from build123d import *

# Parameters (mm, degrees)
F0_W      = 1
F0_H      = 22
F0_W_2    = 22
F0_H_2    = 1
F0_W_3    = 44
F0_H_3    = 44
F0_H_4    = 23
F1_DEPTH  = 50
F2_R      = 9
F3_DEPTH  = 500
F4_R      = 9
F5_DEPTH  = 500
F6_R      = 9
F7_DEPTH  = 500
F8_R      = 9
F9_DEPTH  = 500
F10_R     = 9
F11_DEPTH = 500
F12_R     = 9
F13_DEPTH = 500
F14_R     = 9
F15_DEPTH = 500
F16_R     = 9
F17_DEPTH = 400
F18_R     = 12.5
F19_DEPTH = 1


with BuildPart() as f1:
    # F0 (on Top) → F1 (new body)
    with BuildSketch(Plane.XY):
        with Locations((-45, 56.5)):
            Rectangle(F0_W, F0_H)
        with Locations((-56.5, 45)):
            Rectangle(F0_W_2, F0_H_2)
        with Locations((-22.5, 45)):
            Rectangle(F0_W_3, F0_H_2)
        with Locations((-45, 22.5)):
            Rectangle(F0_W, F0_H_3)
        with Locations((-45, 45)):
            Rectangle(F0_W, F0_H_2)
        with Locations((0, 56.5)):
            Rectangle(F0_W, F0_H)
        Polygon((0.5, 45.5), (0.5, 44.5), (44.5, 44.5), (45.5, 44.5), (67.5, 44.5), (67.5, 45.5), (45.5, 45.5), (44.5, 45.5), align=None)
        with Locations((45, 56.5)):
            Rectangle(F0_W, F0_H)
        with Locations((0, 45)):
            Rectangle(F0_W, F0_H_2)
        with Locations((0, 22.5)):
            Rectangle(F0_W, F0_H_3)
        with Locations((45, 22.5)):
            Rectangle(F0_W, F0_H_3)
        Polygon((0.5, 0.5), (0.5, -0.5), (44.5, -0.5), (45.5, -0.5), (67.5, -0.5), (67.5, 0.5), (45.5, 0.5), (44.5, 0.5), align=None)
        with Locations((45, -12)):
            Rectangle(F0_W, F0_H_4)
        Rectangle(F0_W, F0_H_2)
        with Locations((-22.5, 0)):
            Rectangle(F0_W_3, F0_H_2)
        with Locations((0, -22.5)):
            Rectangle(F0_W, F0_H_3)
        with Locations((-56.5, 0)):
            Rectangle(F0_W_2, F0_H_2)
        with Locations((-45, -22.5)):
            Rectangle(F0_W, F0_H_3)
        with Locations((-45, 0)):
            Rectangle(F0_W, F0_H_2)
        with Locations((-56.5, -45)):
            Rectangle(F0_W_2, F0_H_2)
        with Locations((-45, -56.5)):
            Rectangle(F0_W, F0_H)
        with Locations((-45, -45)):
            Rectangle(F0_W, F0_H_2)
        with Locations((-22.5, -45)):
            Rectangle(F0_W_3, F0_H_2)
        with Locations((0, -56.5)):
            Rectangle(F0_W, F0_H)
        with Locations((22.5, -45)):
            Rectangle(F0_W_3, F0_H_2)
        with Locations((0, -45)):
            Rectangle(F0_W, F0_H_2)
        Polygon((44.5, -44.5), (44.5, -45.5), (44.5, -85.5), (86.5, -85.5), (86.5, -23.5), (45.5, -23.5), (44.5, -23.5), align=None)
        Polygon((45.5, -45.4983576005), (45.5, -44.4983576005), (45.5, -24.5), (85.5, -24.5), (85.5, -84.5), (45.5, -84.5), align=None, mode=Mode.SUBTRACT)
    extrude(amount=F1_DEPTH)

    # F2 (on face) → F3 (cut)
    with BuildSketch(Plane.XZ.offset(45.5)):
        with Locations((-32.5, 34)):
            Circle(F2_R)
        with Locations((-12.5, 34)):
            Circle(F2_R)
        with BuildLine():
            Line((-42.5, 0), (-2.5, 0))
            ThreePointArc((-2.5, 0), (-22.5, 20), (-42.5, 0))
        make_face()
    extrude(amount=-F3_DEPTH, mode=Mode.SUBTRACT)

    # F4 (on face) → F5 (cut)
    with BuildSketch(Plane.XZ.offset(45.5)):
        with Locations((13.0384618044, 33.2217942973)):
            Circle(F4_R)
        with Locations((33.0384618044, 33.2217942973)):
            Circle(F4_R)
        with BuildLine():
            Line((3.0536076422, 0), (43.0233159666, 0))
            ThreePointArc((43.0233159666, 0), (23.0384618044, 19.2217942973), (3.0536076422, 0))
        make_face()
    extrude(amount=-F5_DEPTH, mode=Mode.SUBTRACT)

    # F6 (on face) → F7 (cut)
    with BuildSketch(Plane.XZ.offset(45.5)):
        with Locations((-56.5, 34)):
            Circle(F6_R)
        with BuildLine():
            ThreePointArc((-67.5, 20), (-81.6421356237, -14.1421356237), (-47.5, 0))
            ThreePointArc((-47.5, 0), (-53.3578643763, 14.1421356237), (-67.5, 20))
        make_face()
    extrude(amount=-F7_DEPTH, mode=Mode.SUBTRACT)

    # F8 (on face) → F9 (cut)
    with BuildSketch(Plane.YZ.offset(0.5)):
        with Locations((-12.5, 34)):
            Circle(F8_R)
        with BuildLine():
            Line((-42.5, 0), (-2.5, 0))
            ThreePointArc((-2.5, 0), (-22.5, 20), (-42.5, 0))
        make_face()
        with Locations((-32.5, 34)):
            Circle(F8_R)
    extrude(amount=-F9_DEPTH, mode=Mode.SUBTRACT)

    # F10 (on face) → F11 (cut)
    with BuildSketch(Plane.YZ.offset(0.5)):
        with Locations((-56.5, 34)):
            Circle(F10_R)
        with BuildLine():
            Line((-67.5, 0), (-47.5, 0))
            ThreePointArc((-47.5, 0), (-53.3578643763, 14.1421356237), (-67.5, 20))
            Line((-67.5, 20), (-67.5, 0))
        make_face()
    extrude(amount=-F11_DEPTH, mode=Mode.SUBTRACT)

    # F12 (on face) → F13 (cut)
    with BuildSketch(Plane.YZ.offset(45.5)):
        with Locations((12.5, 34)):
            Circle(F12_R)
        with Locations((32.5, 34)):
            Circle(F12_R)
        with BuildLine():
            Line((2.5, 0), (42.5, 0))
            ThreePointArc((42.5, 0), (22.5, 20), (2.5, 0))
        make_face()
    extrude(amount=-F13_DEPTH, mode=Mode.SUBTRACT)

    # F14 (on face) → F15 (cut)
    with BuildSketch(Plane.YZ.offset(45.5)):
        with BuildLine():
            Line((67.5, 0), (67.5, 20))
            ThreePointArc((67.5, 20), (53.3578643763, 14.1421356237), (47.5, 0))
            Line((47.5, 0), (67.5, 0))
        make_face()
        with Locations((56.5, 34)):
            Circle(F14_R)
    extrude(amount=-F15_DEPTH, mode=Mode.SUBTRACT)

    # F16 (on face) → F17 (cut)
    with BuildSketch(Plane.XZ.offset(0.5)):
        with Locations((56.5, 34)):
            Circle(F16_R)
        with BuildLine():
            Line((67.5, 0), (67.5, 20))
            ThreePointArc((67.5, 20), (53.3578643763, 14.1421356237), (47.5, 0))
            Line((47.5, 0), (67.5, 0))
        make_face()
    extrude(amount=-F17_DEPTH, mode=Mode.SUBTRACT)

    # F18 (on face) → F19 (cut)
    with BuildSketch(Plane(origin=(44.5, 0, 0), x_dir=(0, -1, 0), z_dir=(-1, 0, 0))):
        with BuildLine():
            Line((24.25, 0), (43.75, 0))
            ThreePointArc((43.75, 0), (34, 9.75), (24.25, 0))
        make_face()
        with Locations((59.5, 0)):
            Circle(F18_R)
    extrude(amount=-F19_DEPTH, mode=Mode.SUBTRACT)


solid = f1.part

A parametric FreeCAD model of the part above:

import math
import FreeCAD as App
import Part
import Sketcher
Q = App.Units.Quantity

doc = App.newDocument("Part")
body = doc.addObject("PartDesign::Body", "Body")

sketch1 = body.newObject("Sketcher::SketchObject", "Sketch")
sketch1.AttachmentSupport = (doc.getObject("XY_Plane"), [""])
sketch1.MapMode = "FlatFace"
sketch1.addGeometry(Part.LineSegment(App.Vector(-44.5, -67.5, 0), App.Vector(-44.5, -45.5, 0)), False)
sketch1.addGeometry(Part.LineSegment(App.Vector(-44.5, -45.5, 0), App.Vector(-0.5, -45.5, 0)), False)
sketch1.addGeometry(Part.LineSegment(App.Vector(-0.5, -45.5, 0), App.Vector(-0.5, -67.5, 0)), False)
sketch1.addGeometry(Part.LineSegment(App.Vector(-0.5, -67.5, 0), App.Vector(0.5, -67.5, 0)), False)
sketch1.addGeometry(Part.LineSegment(App.Vector(0.5, -67.5, 0), App.Vector(0.5, -45.5, 0)), False)
sketch1.addGeometry(Part.LineSegment(App.Vector(0.5, -45.5, 0), App.Vector(44.5, -45.5, 0)), False)
sketch1.addGeometry(Part.LineSegment(App.Vector(44.5, -45.5, 0), App.Vector(44.5, -85.5, 0)), False)
sketch1.addGeometry(Part.LineSegment(App.Vector(44.5, -85.5, 0), App.Vector(86.5, -85.5, 0)), False)
sketch1.addGeometry(Part.LineSegment(App.Vector(86.5, -85.5, 0), App.Vector(86.5, -23.5, 0)), False)
sketch1.addGeometry(Part.LineSegment(App.Vector(86.5, -23.5, 0), App.Vector(45.5, -23.5, 0)), False)
sketch1.addGeometry(Part.LineSegment(App.Vector(45.5, -23.5, 0), App.Vector(45.5, -0.5, 0)), False)
sketch1.addGeometry(Part.LineSegment(App.Vector(45.5, -0.5, 0), App.Vector(67.5, -0.5, 0)), False)
sketch1.addGeometry(Part.LineSegment(App.Vector(67.5, -0.5, 0), App.Vector(67.5, 0.5, 0)), False)
sketch1.addGeometry(Part.LineSegment(App.Vector(67.5, 0.5, 0), App.Vector(45.5, 0.5, 0)), False)
sketch1.addGeometry(Part.LineSegment(App.Vector(45.5, 0.5, 0), App.Vector(45.5, 44.5, 0)), False)
sketch1.addGeometry(Part.LineSegment(App.Vector(45.5, 44.5, 0), App.Vector(67.5, 44.5, 0)), False)
sketch1.addGeometry(Part.LineSegment(App.Vector(67.5, 44.5, 0), App.Vector(67.5, 45.5, 0)), False)
sketch1.addGeometry(Part.LineSegment(App.Vector(67.5, 45.5, 0), App.Vector(45.5, 45.5, 0)), False)
sketch1.addGeometry(Part.LineSegment(App.Vector(45.5, 45.5, 0), App.Vector(45.5, 67.5, 0)), False)
sketch1.addGeometry(Part.LineSegment(App.Vector(45.5, 67.5, 0), App.Vector(44.5, 67.5, 0)), False)
sketch1.addGeometry(Part.LineSegment(App.Vector(44.5, 67.5, 0), App.Vector(44.5, 45.5, 0)), False)
sketch1.addGeometry(Part.LineSegment(App.Vector(44.5, 45.5, 0), App.Vector(0.5, 45.5, 0)), False)
sketch1.addGeometry(Part.LineSegment(App.Vector(0.5, 45.5, 0), App.Vector(0.5, 67.5, 0)), False)
sketch1.addGeometry(Part.LineSegment(App.Vector(0.5, 67.5, 0), App.Vector(-0.5, 67.5, 0)), False)
sketch1.addGeometry(Part.LineSegment(App.Vector(-0.5, 67.5, 0), App.Vector(-0.5, 45.5, 0)), False)
sketch1.addGeometry(Part.LineSegment(App.Vector(-0.5, 45.5, 0), App.Vector(-44.5, 45.5, 0)), False)
sketch1.addGeometry(Part.LineSegment(App.Vector(-44.5, 45.5, 0), App.Vector(-44.5, 67.5, 0)), False)
sketch1.addGeometry(Part.LineSegment(App.Vector(-44.5, 67.5, 0), App.Vector(-45.5, 67.5, 0)), False)
sketch1.addGeometry(Part.LineSegment(App.Vector(-45.5, 67.5, 0), App.Vector(-45.5, 45.5, 0)), False)
sketch1.addGeometry(Part.LineSegment(App.Vector(-45.5, 45.5, 0), App.Vector(-67.5, 45.5, 0)), False)
sketch1.addGeometry(Part.LineSegment(App.Vector(-67.5, 45.5, 0), App.Vector(-67.5, 44.5, 0)), False)
sketch1.addGeometry(Part.LineSegment(App.Vector(-67.5, 44.5, 0), App.Vector(-45.5, 44.5, 0)), False)
sketch1.addGeometry(Part.LineSegment(App.Vector(-45.5, 44.5, 0), App.Vector(-45.5, 0.5, 0)), False)
sketch1.addGeometry(Part.LineSegment(App.Vector(-45.5, 0.5, 0), App.Vector(-67.5, 0.5, 0)), False)
sketch1.addGeometry(Part.LineSegment(App.Vector(-67.5, 0.5, 0), App.Vector(-67.5, -0.5, 0)), False)
sketch1.addGeometry(Part.LineSegment(App.Vector(-67.5, -0.5, 0), App.Vector(-45.5, -0.5, 0)), False)
sketch1.addGeometry(Part.LineSegment(App.Vector(-45.5, -0.5, 0), App.Vector(-45.5, -44.5, 0)), False)
sketch1.addGeometry(Part.LineSegment(App.Vector(-45.5, -44.5, 0), App.Vector(-67.5, -44.5, 0)), False)
sketch1.addGeometry(Part.LineSegment(App.Vector(-67.5, -44.5, 0), App.Vector(-67.5, -45.5, 0)), False)
sketch1.addGeometry(Part.LineSegment(App.Vector(-67.5, -45.5, 0), App.Vector(-45.5, -45.5, 0)), False)
sketch1.addGeometry(Part.LineSegment(App.Vector(-45.5, -45.5, 0), App.Vector(-45.5, -67.5, 0)), False)
sketch1.addGeometry(Part.LineSegment(App.Vector(-45.5, -67.5, 0), App.Vector(-44.5, -67.5, 0)), False)
sketch1.addGeometry(Part.LineSegment(App.Vector(-0.5, -0.5, 0), App.Vector(-0.5, -44.5, 0)), False)
sketch1.addGeometry(Part.LineSegment(App.Vector(-0.5, -44.5, 0), App.Vector(-44.5, -44.5, 0)), False)
sketch1.addGeometry(Part.LineSegment(App.Vector(-44.5, -44.5, 0), App.Vector(-44.5, -0.5, 0)), False)
sketch1.addGeometry(Part.LineSegment(App.Vector(-44.5, -0.5, 0), App.Vector(-0.5, -0.5, 0)), False)
sketch1.addGeometry(Part.LineSegment(App.Vector(45.5, -84.5, 0), App.Vector(45.5, -24.5, 0)), False)
sketch1.addGeometry(Part.LineSegment(App.Vector(45.5, -24.5, 0), App.Vector(85.5, -24.5, 0)), False)
sketch1.addGeometry(Part.LineSegment(App.Vector(85.5, -24.5, 0), App.Vector(85.5, -84.5, 0)), False)
sketch1.addGeometry(Part.LineSegment(App.Vector(85.5, -84.5, 0), App.Vector(45.5, -84.5, 0)), False)
sketch1.addGeometry(Part.LineSegment(App.Vector(44.5, -44.5, 0), App.Vector(0.5, -44.5, 0)), False)
sketch1.addGeometry(Part.LineSegment(App.Vector(0.5, -44.5, 0), App.Vector(0.5, -0.5, 0)), False)
sketch1.addGeometry(Part.LineSegment(App.Vector(0.5, -0.5, 0), App.Vector(44.5, -0.5, 0)), False)
sketch1.addGeometry(Part.LineSegment(App.Vector(44.5, -0.5, 0), App.Vector(44.5, -44.5, 0)), False)
sketch1.addGeometry(Part.LineSegment(App.Vector(-0.5, 0.5, 0), App.Vector(-44.5, 0.5, 0)), False)
sketch1.addGeometry(Part.LineSegment(App.Vector(-44.5, 0.5, 0), App.Vector(-44.5, 44.5, 0)), False)
sketch1.addGeometry(Part.LineSegment(App.Vector(-44.5, 44.5, 0), App.Vector(-0.5, 44.5, 0)), False)
sketch1.addGeometry(Part.LineSegment(App.Vector(-0.5, 44.5, 0), App.Vector(-0.5, 0.5, 0)), False)
sketch1.addGeometry(Part.LineSegment(App.Vector(44.5, 0.5, 0), App.Vector(0.5, 0.5, 0)), False)
sketch1.addGeometry(Part.LineSegment(App.Vector(0.5, 0.5, 0), App.Vector(0.5, 44.5, 0)), False)
sketch1.addGeometry(Part.LineSegment(App.Vector(0.5, 44.5, 0), App.Vector(44.5, 44.5, 0)), False)
sketch1.addGeometry(Part.LineSegment(App.Vector(44.5, 44.5, 0), App.Vector(44.5, 0.5, 0)), False)
sketch1.addConstraint(Sketcher.Constraint("Coincident", 0, 2, 1, 1))
sketch1.addConstraint(Sketcher.Constraint("Coincident", 1, 2, 2, 1))
sketch1.addConstraint(Sketcher.Constraint("Coincident", 2, 2, 3, 1))
sketch1.addConstraint(Sketcher.Constraint("Coincident", 3, 2, 4, 1))
sketch1.addConstraint(Sketcher.Constraint("Coincident", 4, 2, 5, 1))
sketch1.addConstraint(Sketcher.Constraint("Coincident", 5, 2, 6, 1))
sketch1.addConstraint(Sketcher.Constraint("Coincident", 6, 2, 7, 1))
sketch1.addConstraint(Sketcher.Constraint("Coincident", 7, 2, 8, 1))
sketch1.addConstraint(Sketcher.Constraint("Coincident", 8, 2, 9, 1))
sketch1.addConstraint(Sketcher.Constraint("Coincident", 9, 2, 10, 1))
sketch1.addConstraint(Sketcher.Constraint("Coincident", 10, 2, 11, 1))
sketch1.addConstraint(Sketcher.Constraint("Coincident", 11, 2, 12, 1))
sketch1.addConstraint(Sketcher.Constraint("Coincident", 12, 2, 13, 1))
sketch1.addConstraint(Sketcher.Constraint("Coincident", 13, 2, 14, 1))
sketch1.addConstraint(Sketcher.Constraint("Coincident", 14, 2, 15, 1))
sketch1.addConstraint(Sketcher.Constraint("Coincident", 15, 2, 16, 1))
sketch1.addConstraint(Sketcher.Constraint("Coincident", 16, 2, 17, 1))
sketch1.addConstraint(Sketcher.Constraint("Coincident", 17, 2, 18, 1))
sketch1.addConstraint(Sketcher.Constraint("Coincident", 18, 2, 19, 1))
sketch1.addConstraint(Sketcher.Constraint("Coincident", 19, 2, 20, 1))
sketch1.addConstraint(Sketcher.Constraint("Coincident", 20, 2, 21, 1))
sketch1.addConstraint(Sketcher.Constraint("Coincident", 21, 2, 22, 1))
sketch1.addConstraint(Sketcher.Constraint("Coincident", 22, 2, 23, 1))
sketch1.addConstraint(Sketcher.Constraint("Coincident", 23, 2, 24, 1))
sketch1.addConstraint(Sketcher.Constraint("Coincident", 24, 2, 25, 1))
sketch1.addConstraint(Sketcher.Constraint("Coincident", 25, 2, 26, 1))
sketch1.addConstraint(Sketcher.Constraint("Coincident", 26, 2, 27, 1))
sketch1.addConstraint(Sketcher.Constraint("Coincident", 27, 2, 28, 1))
sketch1.addConstraint(Sketcher.Constraint("Coincident", 28, 2, 29, 1))
sketch1.addConstraint(Sketcher.Constraint("Coincident", 29, 2, 30, 1))
sketch1.addConstraint(Sketcher.Constraint("Coincident", 30, 2, 31, 1))
sketch1.addConstraint(Sketcher.Constraint("Coincident", 31, 2, 32, 1))
sketch1.addConstraint(Sketcher.Constraint("Coincident", 32, 2, 33, 1))
sketch1.addConstraint(Sketcher.Constraint("Coincident", 33, 2, 34, 1))
sketch1.addConstraint(Sketcher.Constraint("Coincident", 34, 2, 35, 1))
sketch1.addConstraint(Sketcher.Constraint("Coincident", 35, 2, 36, 1))
sketch1.addConstraint(Sketcher.Constraint("Coincident", 36, 2, 37, 1))
sketch1.addConstraint(Sketcher.Constraint("Coincident", 37, 2, 38, 1))
sketch1.addConstraint(Sketcher.Constraint("Coincident", 38, 2, 39, 1))
sketch1.addConstraint(Sketcher.Constraint("Coincident", 39, 2, 40, 1))
sketch1.addConstraint(Sketcher.Constraint("Coincident", 40, 2, 41, 1))
sketch1.addConstraint(Sketcher.Constraint("Coincident", 41, 2, 0, 1))
sketch1.addConstraint(Sketcher.Constraint("Coincident", 42, 2, 43, 1))
sketch1.addConstraint(Sketcher.Constraint("Coincident", 43, 2, 44, 1))
sketch1.addConstraint(Sketcher.Constraint("Coincident", 44, 2, 45, 1))
sketch1.addConstraint(Sketcher.Constraint("Coincident", 45, 2, 42, 1))
sketch1.addConstraint(Sketcher.Constraint("Coincident", 46, 2, 47, 1))
sketch1.addConstraint(Sketcher.Constraint("Coincident", 47, 2, 48, 1))
sketch1.addConstraint(Sketcher.Constraint("Coincident", 48, 2, 49, 1))
sketch1.addConstraint(Sketcher.Constraint("Coincident", 49, 2, 46, 1))
sketch1.addConstraint(Sketcher.Constraint("Coincident", 50, 2, 51, 1))
sketch1.addConstraint(Sketcher.Constraint("Coincident", 51, 2, 52, 1))
sketch1.addConstraint(Sketcher.Constraint("Coincident", 52, 2, 53, 1))
sketch1.addConstraint(Sketcher.Constraint("Coincident", 53, 2, 50, 1))
sketch1.addConstraint(Sketcher.Constraint("Coincident", 54, 2, 55, 1))
sketch1.addConstraint(Sketcher.Constraint("Coincident", 55, 2, 56, 1))
sketch1.addConstraint(Sketcher.Constraint("Coincident", 56, 2, 57, 1))
sketch1.addConstraint(Sketcher.Constraint("Coincident", 57, 2, 54, 1))
sketch1.addConstraint(Sketcher.Constraint("Coincident", 58, 2, 59, 1))
sketch1.addConstraint(Sketcher.Constraint("Coincident", 59, 2, 60, 1))
sketch1.addConstraint(Sketcher.Constraint("Coincident", 60, 2, 61, 1))
sketch1.addConstraint(Sketcher.Constraint("Coincident", 61, 2, 58, 1))
sketch1.addConstraint(Sketcher.Constraint("Vertical", 0))
sketch1.addConstraint(Sketcher.Constraint("Horizontal", 1))
sketch1.addConstraint(Sketcher.Constraint("Vertical", 2))
sketch1.addConstraint(Sketcher.Constraint("Horizontal", 3))
sketch1.addConstraint(Sketcher.Constraint("Vertical", 4))
sketch1.addConstraint(Sketcher.Constraint("Horizontal", 5))
sketch1.addConstraint(Sketcher.Constraint("Vertical", 6))
sketch1.addConstraint(Sketcher.Constraint("Horizontal", 7))
sketch1.addConstraint(Sketcher.Constraint("Vertical", 8))
sketch1.addConstraint(Sketcher.Constraint("Horizontal", 9))
sketch1.addConstraint(Sketcher.Constraint("Vertical", 10))
sketch1.addConstraint(Sketcher.Constraint("Horizontal", 11))
sketch1.addConstraint(Sketcher.Constraint("Vertical", 12))
sketch1.addConstraint(Sketcher.Constraint("Horizontal", 13))
sketch1.addConstraint(Sketcher.Constraint("Vertical", 14))
sketch1.addConstraint(Sketcher.Constraint("Horizontal", 15))
sketch1.addConstraint(Sketcher.Constraint("Vertical", 16))
sketch1.addConstraint(Sketcher.Constraint("Horizontal", 17))
sketch1.addConstraint(Sketcher.Constraint("Vertical", 18))
sketch1.addConstraint(Sketcher.Constraint("Horizontal", 19))
sketch1.addConstraint(Sketcher.Constraint("Vertical", 20))
sketch1.addConstraint(Sketcher.Constraint("Horizontal", 21))
sketch1.addConstraint(Sketcher.Constraint("Vertical", 22))
sketch1.addConstraint(Sketcher.Constraint("Horizontal", 23))
sketch1.addConstraint(Sketcher.Constraint("Vertical", 24))
sketch1.addConstraint(Sketcher.Constraint("Horizontal", 25))
sketch1.addConstraint(Sketcher.Constraint("Vertical", 26))
sketch1.addConstraint(Sketcher.Constraint("Horizontal", 27))
sketch1.addConstraint(Sketcher.Constraint("Vertical", 28))
sketch1.addConstraint(Sketcher.Constraint("Horizontal", 29))
sketch1.addConstraint(Sketcher.Constraint("Vertical", 30))
sketch1.addConstraint(Sketcher.Constraint("Horizontal", 31))
sketch1.addConstraint(Sketcher.Constraint("Vertical", 32))
sketch1.addConstraint(Sketcher.Constraint("Horizontal", 33))
sketch1.addConstraint(Sketcher.Constraint("Vertical", 34))
sketch1.addConstraint(Sketcher.Constraint("Horizontal", 35))
sketch1.addConstraint(Sketcher.Constraint("Vertical", 36))
sketch1.addConstraint(Sketcher.Constraint("Horizontal", 37))
sketch1.addConstraint(Sketcher.Constraint("Vertical", 38))
sketch1.addConstraint(Sketcher.Constraint("Horizontal", 39))
sketch1.addConstraint(Sketcher.Constraint("Vertical", 40))
sketch1.addConstraint(Sketcher.Constraint("Horizontal", 41))
sketch1.addConstraint(Sketcher.Constraint("Vertical", 42))
sketch1.addConstraint(Sketcher.Constraint("Horizontal", 43))
sketch1.addConstraint(Sketcher.Constraint("Vertical", 44))
sketch1.addConstraint(Sketcher.Constraint("Horizontal", 45))
sketch1.addConstraint(Sketcher.Constraint("Vertical", 46))
sketch1.addConstraint(Sketcher.Constraint("Horizontal", 47))
sketch1.addConstraint(Sketcher.Constraint("Vertical", 48))
sketch1.addConstraint(Sketcher.Constraint("Horizontal", 49))
sketch1.addConstraint(Sketcher.Constraint("Horizontal", 50))
sketch1.addConstraint(Sketcher.Constraint("Vertical", 51))
sketch1.addConstraint(Sketcher.Constraint("Horizontal", 52))
sketch1.addConstraint(Sketcher.Constraint("Vertical", 53))
sketch1.addConstraint(Sketcher.Constraint("Horizontal", 54))
sketch1.addConstraint(Sketcher.Constraint("Vertical", 55))
sketch1.addConstraint(Sketcher.Constraint("Horizontal", 56))
sketch1.addConstraint(Sketcher.Constraint("Vertical", 57))
sketch1.addConstraint(Sketcher.Constraint("Horizontal", 58))
sketch1.addConstraint(Sketcher.Constraint("Vertical", 59))
sketch1.addConstraint(Sketcher.Constraint("Horizontal", 60))
sketch1.addConstraint(Sketcher.Constraint("Vertical", 61))
sketch1.addConstraint(Sketcher.Constraint("Symmetric", 0, 2, 20, 2, -1, 1))
sketch1.addConstraint(Sketcher.Constraint("Symmetric", 2, 2, 22, 2, -1, 1))
sketch1.addConstraint(Sketcher.Constraint("Symmetric", 4, 2, 24, 2, -1, 1))
sketch1.addConstraint(Sketcher.Constraint("Symmetric", 10, 2, 32, 2, -1, 1))
sketch1.addConstraint(Sketcher.Constraint("Symmetric", 12, 2, 34, 2, -1, 1))
sketch1.addConstraint(Sketcher.Constraint("Symmetric", 14, 2, 36, 2, -1, 1))
sketch1.addConstraint(Sketcher.Constraint("Symmetric", 16, 2, 38, 2, -1, 1))
sketch1.addConstraint(Sketcher.Constraint("Symmetric", 18, 2, 40, 2, -1, 1))
sketch1.addConstraint(Sketcher.Constraint("Symmetric", 52, 2, 54, 2, -1, 1))
sketch1.addConstraint(Sketcher.Constraint("Symmetric", 50, 2, 56, 2, -1, 1))
sketch1.addConstraint(Sketcher.Constraint("Symmetric", 45, 2, 58, 2, -1, 1))
sketch1.addConstraint(Sketcher.Constraint("Symmetric", 43, 2, 60, 2, -1, 1))
sketch1.addConstraint(Sketcher.Constraint("Symmetric", 1, 2, 4, 2, -2))
sketch1.addConstraint(Sketcher.Constraint("Symmetric", 19, 2, 26, 2, -2))
sketch1.addConstraint(Sketcher.Constraint("Symmetric", 17, 2, 28, 2, -2))
sketch1.addConstraint(Sketcher.Constraint("Symmetric", 15, 2, 30, 2, -2))
sketch1.addConstraint(Sketcher.Constraint("Symmetric", 13, 2, 32, 2, -2))
sketch1.addConstraint(Sketcher.Constraint("Symmetric", 42, 2, 50, 2, -2))
sketch1.addConstraint(Sketcher.Constraint("Symmetric", 44, 2, 52, 2, -2))
sketch1.addConstraint(Sketcher.Constraint("Horizontal", 17, 2, 20, 2))
sketch1.addConstraint(Sketcher.Constraint("Horizontal", 19, 2, 22, 2))
sketch1.addConstraint(Sketcher.Constraint("Horizontal", 37, 2, 42, 2))
sketch1.addConstraint(Sketcher.Constraint("Horizontal", 35, 2, 44, 2))
sketch1.addConstraint(Sketcher.Constraint("Vertical", 12, 2, 15, 2))
sketch1.addConstraint(Sketcher.Constraint("Vertical", 14, 2, 17, 2))
sketch1.addConstraint(Sketcher.Constraint("Vertical", 6, 2, 19, 2))
sketch1.addConstraint(Sketcher.Constraint("Vertical", 24, 2, 42, 2))
sketch1.addConstraint(Sketcher.Constraint("Vertical", 41, 2, 43, 2))
sketch1.addConstraint(Sketcher.Constraint("Vertical", 18, 2, 46, 2))
sketch1.addConstraint(Sketcher.Constraint("Equal", 3, 19))
sketch1.addConstraint(Sketcher.Constraint("Equal", 39, 0))
sketch1.addConstraint(Sketcher.Constraint("Equal", 49, 6))
sketch1.addConstraint(Sketcher.Constraint("Equal", 41, 12))
sketch1.addConstraint(Sketcher.Constraint("Equal", 60, 14))
sketch1.addConstraint(Sketcher.Constraint("Equal", 12, 16))
sketch1.addConstraint(Sketcher.Constraint("DistanceX", 1, 1, 1, 2, Q("44 mm")))
sketch1.addConstraint(Sketcher.Constraint("DistanceX", 3, 1, 3, 2, Q("1 mm")))
sketch1.addConstraint(Sketcher.Constraint("DistanceX", 7, 1, 7, 2, Q("42 mm")))
sketch1.addConstraint(Sketcher.Constraint("DistanceX", 11, 1, 11, 2, Q("22 mm")))
sketch1.addConstraint(Sketcher.Constraint("DistanceX", 47, 1, 47, 2, Q("40 mm")))
sketch1.addConstraint(Sketcher.Constraint("DistanceY", 8, 1, 8, 2, Q("62 mm")))
sketch1.addConstraint(Sketcher.Constraint("DistanceY", 46, 1, 46, 2, Q("60 mm")))
sketch1.addConstraint(Sketcher.Constraint("DistanceY", 46, 2, -1, 1, Q("24.5 mm")))
pad1 = body.newObject("PartDesign::Pad", "Pad")
pad1.Profile = sketch1
pad1.Length = 50

sketch2 = body.newObject("Sketcher::SketchObject", "Sketch001")
sketch2.AttachmentSupport = (doc.getObject("XZ_Plane"), [""])
sketch2.MapMode = "FlatFace"
sketch2.AttachmentOffset = App.Placement(App.Vector(0, 0, 45.5), App.Rotation())
sketch2.addGeometry(Part.Circle(App.Vector(-32.5, 34, 0), App.Vector(0, 0, 1), 9), False)
sketch2.addGeometry(Part.Circle(App.Vector(-12.5, 34, 0), App.Vector(0, 0, 1), 9), False)
sketch2.addGeometry(Part.LineSegment(App.Vector(-42.5, 0, 0), App.Vector(-2.5, 0, 0)), False)
sketch2.addGeometry(Part.ArcOfCircle(Part.Circle(App.Vector(-22.5, 0, 0), App.Vector(0, 0, 1), 20), math.radians(0), math.radians(180)), False)
sketch2.addConstraint(Sketcher.Constraint("Coincident", 2, 1, 3, 2))
sketch2.addConstraint(Sketcher.Constraint("Coincident", 3, 1, 2, 2))
sketch2.addConstraint(Sketcher.Constraint("Horizontal", 2))
sketch2.addConstraint(Sketcher.Constraint("Equal", 0, 1))
sketch2.addConstraint(Sketcher.Constraint("PointOnObject", 3, 3, -1))
sketch2.addConstraint(Sketcher.Constraint("PointOnObject", 2, 1, -1))
sketch2.addConstraint(Sketcher.Constraint("Horizontal", 0, 3, 1, 3))
sketch2.addConstraint(Sketcher.Constraint("Diameter", 0, Q("18 mm")))
sketch2.addConstraint(Sketcher.Constraint("Radius", 3, Q("20 mm")))
sketch2.addConstraint(Sketcher.Constraint("DistanceY", -1, 1, 0, 3, Q("34 mm")))
sketch2.addConstraint(Sketcher.Constraint("DistanceX", 0, 3, 1, 3, Q("20 mm")))
sketch2.addConstraint(Sketcher.Constraint("DistanceX", 0, 3, 3, 3, Q("10 mm")))
sketch2.addConstraint(Sketcher.Constraint("DistanceX", 0, 3, -1, 1, Q("32.5 mm")))
pocket1 = body.newObject("PartDesign::Pocket", "Pocket")
pocket1.Profile = sketch2
pocket1.Length = 500

sketch3 = body.newObject("Sketcher::SketchObject", "Sketch002")
sketch3.AttachmentSupport = (doc.getObject("XZ_Plane"), [""])
sketch3.MapMode = "FlatFace"
sketch3.AttachmentOffset = App.Placement(App.Vector(0, 0, 45.5), App.Rotation())
sketch3.addGeometry(Part.Circle(App.Vector(13.038462, 33.221794, 0), App.Vector(0, 0, 1), 9), False)
sketch3.addGeometry(Part.Circle(App.Vector(33.038462, 33.221794, 0), App.Vector(0, 0, 1), 9), False)
sketch3.addGeometry(Part.LineSegment(App.Vector(3.053608, 0, 0), App.Vector(43.023316, 0, 0)), False)
sketch3.addGeometry(Part.ArcOfCircle(Part.Circle(App.Vector(23.038462, -0.778206, 0), App.Vector(0, 0, 1), 20), math.radians(2.229958), math.radians(177.770042)), False)
sketch3.addConstraint(Sketcher.Constraint("Coincident", 2, 1, 3, 2))
sketch3.addConstraint(Sketcher.Constraint("Coincident", 3, 1, 2, 2))
sketch3.addConstraint(Sketcher.Constraint("Horizontal", 2))
sketch3.addConstraint(Sketcher.Constraint("Equal", 0, 1))
sketch3.addConstraint(Sketcher.Constraint("PointOnObject", 2, 1, -1))
sketch3.addConstraint(Sketcher.Constraint("Horizontal", 0, 3, 1, 3))
sketch3.addConstraint(Sketcher.Constraint("Diameter", 0, Q("18 mm")))
sketch3.addConstraint(Sketcher.Constraint("Radius", 3, Q("20 mm")))
sketch3.addConstraint(Sketcher.Constraint("DistanceX", 0, 3, 1, 3, Q("20 mm")))
sketch3.addConstraint(Sketcher.Constraint("DistanceX", 0, 3, 3, 3, Q("10 mm")))
sketch3.addConstraint(Sketcher.Constraint("DistanceY", 3, 3, 0, 3, Q("34 mm")))
sketch3.addConstraint(Sketcher.Constraint("DistanceX", 2, 1, 2, 2, Q("39.969708 mm")))
sketch3.addConstraint(Sketcher.Constraint("DistanceX", -1, 1, 0, 3, Q("13.038462 mm")))
pocket2 = body.newObject("PartDesign::Pocket", "Pocket001")
pocket2.Profile = sketch3
pocket2.Length = 500

sketch4 = body.newObject("Sketcher::SketchObject", "Sketch003")
sketch4.AttachmentSupport = (doc.getObject("XZ_Plane"), [""])
sketch4.MapMode = "FlatFace"
sketch4.AttachmentOffset = App.Placement(App.Vector(0, 0, 45.5), App.Rotation())
sketch4.addGeometry(Part.Circle(App.Vector(-56.5, 34, 0), App.Vector(0, 0, 1), 9), False)
sketch4.addGeometry(Part.ArcOfCircle(Part.Circle(App.Vector(-67.5, 0, 0), App.Vector(0, 0, 1), 20), math.radians(90), math.radians(360)), False)
sketch4.addGeometry(Part.ArcOfCircle(Part.Circle(App.Vector(-67.5, 0, 0), App.Vector(0, 0, 1), 20), math.radians(0), math.radians(90)), False)
sketch4.addConstraint(Sketcher.Constraint("Tangent", 1, 1, 2, 2))
sketch4.addConstraint(Sketcher.Constraint("Coincident", 2, 1, 1, 2))
sketch4.addConstraint(Sketcher.Constraint("PointOnObject", 1, 3, -1))
sketch4.addConstraint(Sketcher.Constraint("PointOnObject", 2, 1, -1))
sketch4.addConstraint(Sketcher.Constraint("Vertical", 2, 3, 1, 1))
sketch4.addConstraint(Sketcher.Constraint("Diameter", 0, Q("18 mm")))
sketch4.addConstraint(Sketcher.Constraint("Radius", 1, Q("20 mm")))
sketch4.addConstraint(Sketcher.Constraint("DistanceY", -1, 1, 0, 3, Q("34 mm")))
sketch4.addConstraint(Sketcher.Constraint("DistanceX", 1, 3, 0, 3, Q("11 mm")))
sketch4.addConstraint(Sketcher.Constraint("DistanceX", 0, 3, -1, 1, Q("56.5 mm")))
pocket3 = body.newObject("PartDesign::Pocket", "Pocket002")
pocket3.Profile = sketch4
pocket3.Length = 500

sketch5 = body.newObject("Sketcher::SketchObject", "Sketch004")
sketch5.AttachmentSupport = (doc.getObject("YZ_Plane"), [""])
sketch5.MapMode = "FlatFace"
sketch5.AttachmentOffset = App.Placement(App.Vector(0, 0, 0.5), App.Rotation())
sketch5.addGeometry(Part.Circle(App.Vector(-12.5, 34, 0), App.Vector(0, 0, 1), 9), False)
sketch5.addGeometry(Part.LineSegment(App.Vector(-42.5, 0, 0), App.Vector(-2.5, 0, 0)), False)
sketch5.addGeometry(Part.ArcOfCircle(Part.Circle(App.Vector(-22.5, 0, 0), App.Vector(0, 0, 1), 20), math.radians(0), math.radians(180)), False)
sketch5.addGeometry(Part.Circle(App.Vector(-32.5, 34, 0), App.Vector(0, 0, 1), 9), False)
sketch5.addConstraint(Sketcher.Constraint("Coincident", 1, 1, 2, 2))
sketch5.addConstraint(Sketcher.Constraint("Coincident", 2, 1, 1, 2))
sketch5.addConstraint(Sketcher.Constraint("Horizontal", 1))
sketch5.addConstraint(Sketcher.Constraint("Equal", 0, 3))
sketch5.addConstraint(Sketcher.Constraint("PointOnObject", 2, 3, -1))
sketch5.addConstraint(Sketcher.Constraint("PointOnObject", 1, 1, -1))
sketch5.addConstraint(Sketcher.Constraint("Horizontal", 0, 3, 3, 3))
sketch5.addConstraint(Sketcher.Constraint("Diameter", 0, Q("18 mm")))
sketch5.addConstraint(Sketcher.Constraint("Radius", 2, Q("20 mm")))
sketch5.addConstraint(Sketcher.Constraint("DistanceY", -1, 1, 0, 3, Q("34 mm")))
sketch5.addConstraint(Sketcher.Constraint("DistanceX", 2, 3, 0, 3, Q("10 mm")))
sketch5.addConstraint(Sketcher.Constraint("DistanceX", 3, 3, 0, 3, Q("20 mm")))
sketch5.addConstraint(Sketcher.Constraint("DistanceX", 0, 3, -1, 1, Q("12.5 mm")))
pocket4 = body.newObject("PartDesign::Pocket", "Pocket003")
pocket4.Profile = sketch5
pocket4.Length = 500

sketch6 = body.newObject("Sketcher::SketchObject", "Sketch005")
sketch6.AttachmentSupport = (doc.getObject("YZ_Plane"), [""])
sketch6.MapMode = "FlatFace"
sketch6.AttachmentOffset = App.Placement(App.Vector(0, 0, 0.5), App.Rotation())
sketch6.addGeometry(Part.Circle(App.Vector(-56.5, 34, 0), App.Vector(0, 0, 1), 9), False)
sketch6.addGeometry(Part.LineSegment(App.Vector(-67.5, 0, 0), App.Vector(-47.5, 0, 0)), False)
sketch6.addGeometry(Part.ArcOfCircle(Part.Circle(App.Vector(-67.5, 0, 0), App.Vector(0, 0, 1), 20), math.radians(0), math.radians(90)), False)
sketch6.addGeometry(Part.LineSegment(App.Vector(-67.5, 20, 0), App.Vector(-67.5, 0, 0)), False)
sketch6.addConstraint(Sketcher.Constraint("Coincident", 1, 2, 2, 1))
sketch6.addConstraint(Sketcher.Constraint("Coincident", 2, 2, 3, 1))
sketch6.addConstraint(Sketcher.Constraint("Coincident", 3, 2, 1, 1))
sketch6.addConstraint(Sketcher.Constraint("Horizontal", 1))
sketch6.addConstraint(Sketcher.Constraint("Vertical", 3))
sketch6.addConstraint(Sketcher.Constraint("Coincident", 3, 2, 2, 3))
sketch6.addConstraint(Sketcher.Constraint("PointOnObject", 2, 3, -1))
sketch6.addConstraint(Sketcher.Constraint("Diameter", 0, Q("18 mm")))
sketch6.addConstraint(Sketcher.Constraint("Radius", 2, Q("20 mm")))
sketch6.addConstraint(Sketcher.Constraint("DistanceY", -1, 1, 0, 3, Q("34 mm")))
sketch6.addConstraint(Sketcher.Constraint("DistanceX", 2, 3, 0, 3, Q("11 mm")))
sketch6.addConstraint(Sketcher.Constraint("DistanceX", 0, 3, -1, 1, Q("56.5 mm")))
pocket5 = body.newObject("PartDesign::Pocket", "Pocket004")
pocket5.Profile = sketch6
pocket5.Length = 500

sketch7 = body.newObject("Sketcher::SketchObject", "Sketch006")
sketch7.AttachmentSupport = (doc.getObject("YZ_Plane"), [""])
sketch7.MapMode = "FlatFace"
sketch7.AttachmentOffset = App.Placement(App.Vector(0, 0, 45.5), App.Rotation())
sketch7.addGeometry(Part.Circle(App.Vector(12.5, 34, 0), App.Vector(0, 0, 1), 9), False)
sketch7.addGeometry(Part.Circle(App.Vector(32.5, 34, 0), App.Vector(0, 0, 1), 9), False)
sketch7.addGeometry(Part.LineSegment(App.Vector(2.5, 0, 0), App.Vector(42.5, 0, 0)), False)
sketch7.addGeometry(Part.ArcOfCircle(Part.Circle(App.Vector(22.5, 0, 0), App.Vector(0, 0, 1), 20), math.radians(0), math.radians(180)), False)
sketch7.addConstraint(Sketcher.Constraint("Coincident", 2, 1, 3, 2))
sketch7.addConstraint(Sketcher.Constraint("Coincident", 3, 1, 2, 2))
sketch7.addConstraint(Sketcher.Constraint("Horizontal", 2))
sketch7.addConstraint(Sketcher.Constraint("Equal", 0, 1))
sketch7.addConstraint(Sketcher.Constraint("PointOnObject", 3, 3, -1))
sketch7.addConstraint(Sketcher.Constraint("PointOnObject", 2, 1, -1))
sketch7.addConstraint(Sketcher.Constraint("Horizontal", 0, 3, 1, 3))
sketch7.addConstraint(Sketcher.Constraint("Diameter", 0, Q("18 mm")))
sketch7.addConstraint(Sketcher.Constraint("Radius", 3, Q("20 mm")))
sketch7.addConstraint(Sketcher.Constraint("DistanceY", -1, 1, 0, 3, Q("34 mm")))
sketch7.addConstraint(Sketcher.Constraint("DistanceX", 0, 3, 1, 3, Q("20 mm")))
sketch7.addConstraint(Sketcher.Constraint("DistanceX", 0, 3, 3, 3, Q("10 mm")))
sketch7.addConstraint(Sketcher.Constraint("DistanceX", -1, 1, 0, 3, Q("12.5 mm")))
pocket6 = body.newObject("PartDesign::Pocket", "Pocket005")
pocket6.Profile = sketch7
pocket6.Length = 500

sketch8 = body.newObject("Sketcher::SketchObject", "Sketch007")
sketch8.AttachmentSupport = (doc.getObject("YZ_Plane"), [""])
sketch8.MapMode = "FlatFace"
sketch8.AttachmentOffset = App.Placement(App.Vector(0, 0, 45.5), App.Rotation())
sketch8.addGeometry(Part.LineSegment(App.Vector(67.5, 0, 0), App.Vector(67.5, 20, 0)), False)
sketch8.addGeometry(Part.ArcOfCircle(Part.Circle(App.Vector(67.5, 0, 0), App.Vector(0, 0, 1), 20), math.radians(90), math.radians(180)), False)
sketch8.addGeometry(Part.LineSegment(App.Vector(47.5, 0, 0), App.Vector(67.5, 0, 0)), False)
sketch8.addGeometry(Part.Circle(App.Vector(56.5, 34, 0), App.Vector(0, 0, 1), 9), False)
sketch8.addConstraint(Sketcher.Constraint("Coincident", 0, 2, 1, 1))
sketch8.addConstraint(Sketcher.Constraint("Coincident", 1, 2, 2, 1))
sketch8.addConstraint(Sketcher.Constraint("Coincident", 2, 2, 0, 1))
sketch8.addConstraint(Sketcher.Constraint("Vertical", 0))
sketch8.addConstraint(Sketcher.Constraint("Horizontal", 2))
sketch8.addConstraint(Sketcher.Constraint("Coincident", 2, 2, 1, 3))
sketch8.addConstraint(Sketcher.Constraint("PointOnObject", 1, 3, -1))
sketch8.addConstraint(Sketcher.Constraint("Diameter", 3, Q("18 mm")))
sketch8.addConstraint(Sketcher.Constraint("Radius", 1, Q("20 mm")))
sketch8.addConstraint(Sketcher.Constraint("DistanceY", -1, 1, 3, 3, Q("34 mm")))
sketch8.addConstraint(Sketcher.Constraint("DistanceX", 3, 3, 1, 3, Q("11 mm")))
sketch8.addConstraint(Sketcher.Constraint("DistanceX", -1, 1, 1, 3, Q("67.5 mm")))
pocket7 = body.newObject("PartDesign::Pocket", "Pocket006")
pocket7.Profile = sketch8
pocket7.Length = 500

sketch9 = body.newObject("Sketcher::SketchObject", "Sketch008")
sketch9.AttachmentSupport = (doc.getObject("XZ_Plane"), [""])
sketch9.MapMode = "FlatFace"
sketch9.AttachmentOffset = App.Placement(App.Vector(0, 0, 0.5), App.Rotation())
sketch9.addGeometry(Part.Circle(App.Vector(56.5, 34, 0), App.Vector(0, 0, 1), 9), False)
sketch9.addGeometry(Part.LineSegment(App.Vector(67.5, 0, 0), App.Vector(67.5, 20, 0)), False)
sketch9.addGeometry(Part.ArcOfCircle(Part.Circle(App.Vector(67.5, 0, 0), App.Vector(0, 0, 1), 20), math.radians(90), math.radians(180)), False)
sketch9.addGeometry(Part.LineSegment(App.Vector(47.5, 0, 0), App.Vector(67.5, 0, 0)), False)
sketch9.addConstraint(Sketcher.Constraint("Coincident", 1, 2, 2, 1))
sketch9.addConstraint(Sketcher.Constraint("Coincident", 2, 2, 3, 1))
sketch9.addConstraint(Sketcher.Constraint("Coincident", 3, 2, 1, 1))
sketch9.addConstraint(Sketcher.Constraint("Vertical", 1))
sketch9.addConstraint(Sketcher.Constraint("Horizontal", 3))
sketch9.addConstraint(Sketcher.Constraint("Coincident", 3, 2, 2, 3))
sketch9.addConstraint(Sketcher.Constraint("PointOnObject", 2, 3, -1))
sketch9.addConstraint(Sketcher.Constraint("Diameter", 0, Q("18 mm")))
sketch9.addConstraint(Sketcher.Constraint("Radius", 2, Q("20 mm")))
sketch9.addConstraint(Sketcher.Constraint("DistanceY", -1, 1, 0, 3, Q("34 mm")))
sketch9.addConstraint(Sketcher.Constraint("DistanceX", 0, 3, 2, 3, Q("11 mm")))
sketch9.addConstraint(Sketcher.Constraint("DistanceX", -1, 1, 0, 3, Q("56.5 mm")))
pocket8 = body.newObject("PartDesign::Pocket", "Pocket007")
pocket8.Profile = sketch9
pocket8.Length = 400

sketch10 = body.newObject("Sketcher::SketchObject", "Sketch009")
sketch10.AttachmentSupport = (doc.getObject("YZ_Plane"), [""])
sketch10.MapMode = "FlatFace"
sketch10.AttachmentOffset = App.Placement(App.Vector(0, 0, 44.5), App.Rotation())
sketch10.addGeometry(Part.LineSegment(App.Vector(-24.25, 0, 0), App.Vector(-43.75, 0, 0)), False)
sketch10.addGeometry(Part.ArcOfCircle(Part.Circle(App.Vector(-34, 0, 0), App.Vector(0, 0, 1), 9.75), math.radians(0), math.radians(180)), False)
sketch10.addGeometry(Part.Circle(App.Vector(-59.5, 0, 0), App.Vector(0, 0, 1), 12.5), False)
sketch10.addConstraint(Sketcher.Constraint("Coincident", 0, 1, 1, 1))
sketch10.addConstraint(Sketcher.Constraint("Coincident", 1, 2, 0, 2))
sketch10.addConstraint(Sketcher.Constraint("Horizontal", 0))
sketch10.addConstraint(Sketcher.Constraint("PointOnObject", 1, 3, -1))
sketch10.addConstraint(Sketcher.Constraint("PointOnObject", 2, 3, -1))
sketch10.addConstraint(Sketcher.Constraint("PointOnObject", 0, 1, -1))
sketch10.addConstraint(Sketcher.Constraint("Diameter", 2, Q("25 mm")))
sketch10.addConstraint(Sketcher.Constraint("Radius", 1, Q("9.75 mm")))
sketch10.addConstraint(Sketcher.Constraint("DistanceX", 1, 3, -1, 1, Q("34 mm")))
sketch10.addConstraint(Sketcher.Constraint("DistanceX", 2, 3, -1, 1, Q("59.5 mm")))
pocket9 = body.newObject("PartDesign::Pocket", "Pocket008")
pocket9.Profile = sketch10
pocket9.Length = 1
pocket9.Reversed = True

doc.recompute()
